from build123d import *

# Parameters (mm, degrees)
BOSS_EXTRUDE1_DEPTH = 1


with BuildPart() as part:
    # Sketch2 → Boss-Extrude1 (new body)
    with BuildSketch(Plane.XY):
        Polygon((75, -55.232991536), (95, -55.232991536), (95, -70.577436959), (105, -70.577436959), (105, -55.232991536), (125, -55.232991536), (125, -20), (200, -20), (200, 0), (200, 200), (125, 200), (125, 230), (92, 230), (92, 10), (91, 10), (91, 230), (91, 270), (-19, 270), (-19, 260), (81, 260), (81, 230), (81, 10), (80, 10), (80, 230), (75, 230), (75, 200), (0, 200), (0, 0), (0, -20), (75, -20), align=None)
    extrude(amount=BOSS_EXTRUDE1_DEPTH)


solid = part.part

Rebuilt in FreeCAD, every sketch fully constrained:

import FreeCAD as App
import Part
import Sketcher
Q = App.Units.Quantity

doc = App.newDocument("Part")
body = doc.addObject("PartDesign::Body", "Body")

# Sketch on XY plane
sketch1 = body.newObject("Sketcher::SketchObject", "Sketch")
sketch1.AttachmentSupport = (doc.getObject("XY_Plane"), [""])
sketch1.MapMode = "FlatFace"
sketch1.addGeometry([
    Part.LineSegment(App.Vector(75, -55.2, 0), App.Vector(95, -55.2, 0)),  # 0
    Part.LineSegment(App.Vector(95, -55.2, 0), App.Vector(95, -70.6, 0)),  # 1
    Part.LineSegment(App.Vector(95, -70.6, 0), App.Vector(105, -70.6, 0)),  # 2
    Part.LineSegment(App.Vector(105, -70.6, 0), App.Vector(105, -55.2, 0)),  # 3
    Part.LineSegment(App.Vector(105, -55.2, 0), App.Vector(125, -55.2, 0)),  # 4
    Part.LineSegment(App.Vector(125, -55.2, 0), App.Vector(125, -20, 0)),  # 5
    Part.LineSegment(App.Vector(125, -20, 0), App.Vector(200, -20, 0)),  # 6
    Part.LineSegment(App.Vector(200, -20, 0), App.Vector(200, 200, 0)),  # 7
    Part.LineSegment(App.Vector(200, 200, 0), App.Vector(125, 200, 0)),  # 8
    Part.LineSegment(App.Vector(125, 200, 0), App.Vector(125, 230, 0)),  # 9
    Part.LineSegment(App.Vector(125, 230, 0), App.Vector(92, 230, 0)),  # 10
    Part.LineSegment(App.Vector(92, 230, 0), App.Vector(92, 10, 0)),  # 11
    Part.LineSegment(App.Vector(92, 10, 0), App.Vector(91, 10, 0)),  # 12
    Part.LineSegment(App.Vector(91, 10, 0), App.Vector(91, 270, 0)),  # 13
    Part.LineSegment(App.Vector(91, 270, 0), App.Vector(-19, 270, 0)),  # 14
    Part.LineSegment(App.Vector(-19, 270, 0), App.Vector(-19, 260, 0)),  # 15
    Part.LineSegment(App.Vector(-19, 260, 0), App.Vector(81, 260, 0)),  # 16
    Part.LineSegment(App.Vector(81, 260, 0), App.Vector(81, 10, 0)),  # 17
    Part.LineSegment(App.Vector(81, 10, 0), App.Vector(80, 10, 0)),  # 18
    Part.LineSegment(App.Vector(80, 10, 0), App.Vector(80, 230, 0)),  # 19
    Part.LineSegment(App.Vector(80, 230, 0), App.Vector(75, 230, 0)),  # 20
    Part.LineSegment(App.Vector(75, 230, 0), App.Vector(75, 200, 0)),  # 21
    Part.LineSegment(App.Vector(75, 200, 0), App.Vector(0, 200, 0)),  # 22
    Part.LineSegment(App.Vector(0, 200, 0), App.Vector(0, -20, 0)),  # 23
    Part.LineSegment(App.Vector(0, -20, 0), App.Vector(75, -20, 0)),  # 24
    Part.LineSegment(App.Vector(75, -20, 0), App.Vector(75, -55.2, 0)),  # 25
], False)
sketch1.addConstraint([
    Sketcher.Constraint("Coincident", 0, 2, 1, 1),
    Sketcher.Constraint("Coincident", 1, 2, 2, 1),
    Sketcher.Constraint("Coincident", 2, 2, 3, 1),
    Sketcher.Constraint("Coincident", 3, 2, 4, 1),
    Sketcher.Constraint("Coincident", 4, 2, 5, 1),
    Sketcher.Constraint("Coincident", 5, 2, 6, 1),
    Sketcher.Constraint("Coincident", 6, 2, 7, 1),
    Sketcher.Constraint("Coincident", 7, 2, 8, 1),
    Sketcher.Constraint("Coincident", 8, 2, 9, 1),
    Sketcher.Constraint("Coincident", 9, 2, 10, 1),
    Sketcher.Constraint("Coincident", 10, 2, 11, 1),
    Sketcher.Constraint("Coincident", 11, 2, 12, 1),
    Sketcher.Constraint("Coincident", 12, 2, 13, 1),
    Sketcher.Constraint("Coincident", 13, 2, 14, 1),
    Sketcher.Constraint("Coincident", 14, 2, 15, 1),
    Sketcher.Constraint("Coincident", 15, 2, 16, 1),
    Sketcher.Constraint("Coincident", 16, 2, 17, 1),
    Sketcher.Constraint("Coincident", 17, 2, 18, 1),
    Sketcher.Constraint("Coincident", 18, 2, 19, 1),
    Sketcher.Constraint("Coincident", 19, 2, 20, 1),
    Sketcher.Constraint("Coincident", 20, 2, 21, 1),
    Sketcher.Constraint("Coincident", 21, 2, 22, 1),
    Sketcher.Constraint("Coincident", 22, 2, 23, 1),
    Sketcher.Constraint("Coincident", 23, 2, 24, 1),
    Sketcher.Constraint("Coincident", 24, 2, 25, 1),
    Sketcher.Constraint("Coincident", 25, 2, 0, 1),
    Sketcher.Constraint("Horizontal", 0),
    Sketcher.Constraint("Vertical", 1),
    Sketcher.Constraint("Horizontal", 2),
    Sketcher.Constraint("Vertical", 3),
    Sketcher.Constraint("Horizontal", 4),
    Sketcher.Constraint("Vertical", 5),
    Sketcher.Constraint("Horizontal", 6),
    Sketcher.Constraint("Vertical", 7),
    Sketcher.Constraint("Horizontal", 8),
    Sketcher.Constraint("Vertical", 9),
    Sketcher.Constraint("Horizontal", 10),
    Sketcher.Constraint("Vertical", 11),
    Sketcher.Constraint("Horizontal", 12),
    Sketcher.Constraint("Vertical", 13),
    Sketcher.Constraint("Horizontal", 14),
    Sketcher.Constraint("Vertical", 15),
    Sketcher.Constraint("Horizontal", 16),
    Sketcher.Constraint("Vertical", 17),
    Sketcher.Constraint("Horizontal", 18),
    Sketcher.Constraint("Vertical", 19),
    Sketcher.Constraint("Horizontal", 20),
    Sketcher.Constraint("Vertical", 21),
    Sketcher.Constraint("Horizontal", 22),
    Sketcher.Constraint("Vertical", 23),
    Sketcher.Constraint("Horizontal", 24),
    Sketcher.Constraint("Vertical", 25),
    Sketcher.Constraint("PointOnObject", 22, 2, -2),
    Sketcher.Constraint("Horizontal", 0, 2, 3, 2),
    Sketcher.Constraint("Horizontal", 12, 2, 17, 2),
    Sketcher.Constraint("Horizontal", 10, 2, 19, 2),
    Sketcher.Constraint("Horizontal", 8, 2, 21, 2),
    Sketcher.Constraint("Horizontal", 6, 2, 23, 2),
    Sketcher.Constraint("Vertical", 5, 2, 8, 2),
    Sketcher.Constraint("Vertical", 21, 2, 24, 2),
    Sketcher.Constraint("Equal", 0, 4),
    Sketcher.Constraint("Equal", 12, 18),
    Sketcher.Constraint("Equal", 8, 22),
    Sketcher.Constraint("Equal", 7, 11),
    Sketcher.Constraint("Equal", 2, 15),
    Sketcher.Constraint("DistanceX", 0, 1, 0, 2, Q("20 mm")),
    Sketcher.Constraint("DistanceX", 2, 1, 2, 2, Q("10 mm")),
    Sketcher.Constraint("DistanceX", 6, 1, 6, 2, Q("75 mm")),
    Sketcher.Constraint("DistanceX", 10, 2, 10, 1, Q("33 mm")),
    Sketcher.Constraint("DistanceX", 12, 2, 12, 1, Q("1 mm")),
    Sketcher.Constraint("DistanceX", 14, 2, 14, 1, Q("110 mm")),
    Sketcher.Constraint("DistanceX", 16, 1, 16, 2, Q("100 mm")),
    Sketcher.Constraint("DistanceY", 7, 1, 7, 2, Q("220 mm")),
    Sketcher.Constraint("DistanceY", 9, 1, 9, 2, Q("30 mm")),
    Sketcher.Constraint("DistanceY", 13, 1, 13, 2, Q("260 mm")),
    Sketcher.Constraint("DistanceY", 5, 2, -1, 1, Q("20 mm")),
    Sketcher.Constraint("DistanceY", 5, 1, 5, 2, Q("35.232992 mm")),
    Sketcher.Constraint("DistanceY", 1, 2, 1, 1, Q("15.344445 mm")),
])
pad1 = body.newObject("PartDesign::Pad", "Pad")
pad1.Profile = sketch1
pad1.Length = 1

doc.recompute()
